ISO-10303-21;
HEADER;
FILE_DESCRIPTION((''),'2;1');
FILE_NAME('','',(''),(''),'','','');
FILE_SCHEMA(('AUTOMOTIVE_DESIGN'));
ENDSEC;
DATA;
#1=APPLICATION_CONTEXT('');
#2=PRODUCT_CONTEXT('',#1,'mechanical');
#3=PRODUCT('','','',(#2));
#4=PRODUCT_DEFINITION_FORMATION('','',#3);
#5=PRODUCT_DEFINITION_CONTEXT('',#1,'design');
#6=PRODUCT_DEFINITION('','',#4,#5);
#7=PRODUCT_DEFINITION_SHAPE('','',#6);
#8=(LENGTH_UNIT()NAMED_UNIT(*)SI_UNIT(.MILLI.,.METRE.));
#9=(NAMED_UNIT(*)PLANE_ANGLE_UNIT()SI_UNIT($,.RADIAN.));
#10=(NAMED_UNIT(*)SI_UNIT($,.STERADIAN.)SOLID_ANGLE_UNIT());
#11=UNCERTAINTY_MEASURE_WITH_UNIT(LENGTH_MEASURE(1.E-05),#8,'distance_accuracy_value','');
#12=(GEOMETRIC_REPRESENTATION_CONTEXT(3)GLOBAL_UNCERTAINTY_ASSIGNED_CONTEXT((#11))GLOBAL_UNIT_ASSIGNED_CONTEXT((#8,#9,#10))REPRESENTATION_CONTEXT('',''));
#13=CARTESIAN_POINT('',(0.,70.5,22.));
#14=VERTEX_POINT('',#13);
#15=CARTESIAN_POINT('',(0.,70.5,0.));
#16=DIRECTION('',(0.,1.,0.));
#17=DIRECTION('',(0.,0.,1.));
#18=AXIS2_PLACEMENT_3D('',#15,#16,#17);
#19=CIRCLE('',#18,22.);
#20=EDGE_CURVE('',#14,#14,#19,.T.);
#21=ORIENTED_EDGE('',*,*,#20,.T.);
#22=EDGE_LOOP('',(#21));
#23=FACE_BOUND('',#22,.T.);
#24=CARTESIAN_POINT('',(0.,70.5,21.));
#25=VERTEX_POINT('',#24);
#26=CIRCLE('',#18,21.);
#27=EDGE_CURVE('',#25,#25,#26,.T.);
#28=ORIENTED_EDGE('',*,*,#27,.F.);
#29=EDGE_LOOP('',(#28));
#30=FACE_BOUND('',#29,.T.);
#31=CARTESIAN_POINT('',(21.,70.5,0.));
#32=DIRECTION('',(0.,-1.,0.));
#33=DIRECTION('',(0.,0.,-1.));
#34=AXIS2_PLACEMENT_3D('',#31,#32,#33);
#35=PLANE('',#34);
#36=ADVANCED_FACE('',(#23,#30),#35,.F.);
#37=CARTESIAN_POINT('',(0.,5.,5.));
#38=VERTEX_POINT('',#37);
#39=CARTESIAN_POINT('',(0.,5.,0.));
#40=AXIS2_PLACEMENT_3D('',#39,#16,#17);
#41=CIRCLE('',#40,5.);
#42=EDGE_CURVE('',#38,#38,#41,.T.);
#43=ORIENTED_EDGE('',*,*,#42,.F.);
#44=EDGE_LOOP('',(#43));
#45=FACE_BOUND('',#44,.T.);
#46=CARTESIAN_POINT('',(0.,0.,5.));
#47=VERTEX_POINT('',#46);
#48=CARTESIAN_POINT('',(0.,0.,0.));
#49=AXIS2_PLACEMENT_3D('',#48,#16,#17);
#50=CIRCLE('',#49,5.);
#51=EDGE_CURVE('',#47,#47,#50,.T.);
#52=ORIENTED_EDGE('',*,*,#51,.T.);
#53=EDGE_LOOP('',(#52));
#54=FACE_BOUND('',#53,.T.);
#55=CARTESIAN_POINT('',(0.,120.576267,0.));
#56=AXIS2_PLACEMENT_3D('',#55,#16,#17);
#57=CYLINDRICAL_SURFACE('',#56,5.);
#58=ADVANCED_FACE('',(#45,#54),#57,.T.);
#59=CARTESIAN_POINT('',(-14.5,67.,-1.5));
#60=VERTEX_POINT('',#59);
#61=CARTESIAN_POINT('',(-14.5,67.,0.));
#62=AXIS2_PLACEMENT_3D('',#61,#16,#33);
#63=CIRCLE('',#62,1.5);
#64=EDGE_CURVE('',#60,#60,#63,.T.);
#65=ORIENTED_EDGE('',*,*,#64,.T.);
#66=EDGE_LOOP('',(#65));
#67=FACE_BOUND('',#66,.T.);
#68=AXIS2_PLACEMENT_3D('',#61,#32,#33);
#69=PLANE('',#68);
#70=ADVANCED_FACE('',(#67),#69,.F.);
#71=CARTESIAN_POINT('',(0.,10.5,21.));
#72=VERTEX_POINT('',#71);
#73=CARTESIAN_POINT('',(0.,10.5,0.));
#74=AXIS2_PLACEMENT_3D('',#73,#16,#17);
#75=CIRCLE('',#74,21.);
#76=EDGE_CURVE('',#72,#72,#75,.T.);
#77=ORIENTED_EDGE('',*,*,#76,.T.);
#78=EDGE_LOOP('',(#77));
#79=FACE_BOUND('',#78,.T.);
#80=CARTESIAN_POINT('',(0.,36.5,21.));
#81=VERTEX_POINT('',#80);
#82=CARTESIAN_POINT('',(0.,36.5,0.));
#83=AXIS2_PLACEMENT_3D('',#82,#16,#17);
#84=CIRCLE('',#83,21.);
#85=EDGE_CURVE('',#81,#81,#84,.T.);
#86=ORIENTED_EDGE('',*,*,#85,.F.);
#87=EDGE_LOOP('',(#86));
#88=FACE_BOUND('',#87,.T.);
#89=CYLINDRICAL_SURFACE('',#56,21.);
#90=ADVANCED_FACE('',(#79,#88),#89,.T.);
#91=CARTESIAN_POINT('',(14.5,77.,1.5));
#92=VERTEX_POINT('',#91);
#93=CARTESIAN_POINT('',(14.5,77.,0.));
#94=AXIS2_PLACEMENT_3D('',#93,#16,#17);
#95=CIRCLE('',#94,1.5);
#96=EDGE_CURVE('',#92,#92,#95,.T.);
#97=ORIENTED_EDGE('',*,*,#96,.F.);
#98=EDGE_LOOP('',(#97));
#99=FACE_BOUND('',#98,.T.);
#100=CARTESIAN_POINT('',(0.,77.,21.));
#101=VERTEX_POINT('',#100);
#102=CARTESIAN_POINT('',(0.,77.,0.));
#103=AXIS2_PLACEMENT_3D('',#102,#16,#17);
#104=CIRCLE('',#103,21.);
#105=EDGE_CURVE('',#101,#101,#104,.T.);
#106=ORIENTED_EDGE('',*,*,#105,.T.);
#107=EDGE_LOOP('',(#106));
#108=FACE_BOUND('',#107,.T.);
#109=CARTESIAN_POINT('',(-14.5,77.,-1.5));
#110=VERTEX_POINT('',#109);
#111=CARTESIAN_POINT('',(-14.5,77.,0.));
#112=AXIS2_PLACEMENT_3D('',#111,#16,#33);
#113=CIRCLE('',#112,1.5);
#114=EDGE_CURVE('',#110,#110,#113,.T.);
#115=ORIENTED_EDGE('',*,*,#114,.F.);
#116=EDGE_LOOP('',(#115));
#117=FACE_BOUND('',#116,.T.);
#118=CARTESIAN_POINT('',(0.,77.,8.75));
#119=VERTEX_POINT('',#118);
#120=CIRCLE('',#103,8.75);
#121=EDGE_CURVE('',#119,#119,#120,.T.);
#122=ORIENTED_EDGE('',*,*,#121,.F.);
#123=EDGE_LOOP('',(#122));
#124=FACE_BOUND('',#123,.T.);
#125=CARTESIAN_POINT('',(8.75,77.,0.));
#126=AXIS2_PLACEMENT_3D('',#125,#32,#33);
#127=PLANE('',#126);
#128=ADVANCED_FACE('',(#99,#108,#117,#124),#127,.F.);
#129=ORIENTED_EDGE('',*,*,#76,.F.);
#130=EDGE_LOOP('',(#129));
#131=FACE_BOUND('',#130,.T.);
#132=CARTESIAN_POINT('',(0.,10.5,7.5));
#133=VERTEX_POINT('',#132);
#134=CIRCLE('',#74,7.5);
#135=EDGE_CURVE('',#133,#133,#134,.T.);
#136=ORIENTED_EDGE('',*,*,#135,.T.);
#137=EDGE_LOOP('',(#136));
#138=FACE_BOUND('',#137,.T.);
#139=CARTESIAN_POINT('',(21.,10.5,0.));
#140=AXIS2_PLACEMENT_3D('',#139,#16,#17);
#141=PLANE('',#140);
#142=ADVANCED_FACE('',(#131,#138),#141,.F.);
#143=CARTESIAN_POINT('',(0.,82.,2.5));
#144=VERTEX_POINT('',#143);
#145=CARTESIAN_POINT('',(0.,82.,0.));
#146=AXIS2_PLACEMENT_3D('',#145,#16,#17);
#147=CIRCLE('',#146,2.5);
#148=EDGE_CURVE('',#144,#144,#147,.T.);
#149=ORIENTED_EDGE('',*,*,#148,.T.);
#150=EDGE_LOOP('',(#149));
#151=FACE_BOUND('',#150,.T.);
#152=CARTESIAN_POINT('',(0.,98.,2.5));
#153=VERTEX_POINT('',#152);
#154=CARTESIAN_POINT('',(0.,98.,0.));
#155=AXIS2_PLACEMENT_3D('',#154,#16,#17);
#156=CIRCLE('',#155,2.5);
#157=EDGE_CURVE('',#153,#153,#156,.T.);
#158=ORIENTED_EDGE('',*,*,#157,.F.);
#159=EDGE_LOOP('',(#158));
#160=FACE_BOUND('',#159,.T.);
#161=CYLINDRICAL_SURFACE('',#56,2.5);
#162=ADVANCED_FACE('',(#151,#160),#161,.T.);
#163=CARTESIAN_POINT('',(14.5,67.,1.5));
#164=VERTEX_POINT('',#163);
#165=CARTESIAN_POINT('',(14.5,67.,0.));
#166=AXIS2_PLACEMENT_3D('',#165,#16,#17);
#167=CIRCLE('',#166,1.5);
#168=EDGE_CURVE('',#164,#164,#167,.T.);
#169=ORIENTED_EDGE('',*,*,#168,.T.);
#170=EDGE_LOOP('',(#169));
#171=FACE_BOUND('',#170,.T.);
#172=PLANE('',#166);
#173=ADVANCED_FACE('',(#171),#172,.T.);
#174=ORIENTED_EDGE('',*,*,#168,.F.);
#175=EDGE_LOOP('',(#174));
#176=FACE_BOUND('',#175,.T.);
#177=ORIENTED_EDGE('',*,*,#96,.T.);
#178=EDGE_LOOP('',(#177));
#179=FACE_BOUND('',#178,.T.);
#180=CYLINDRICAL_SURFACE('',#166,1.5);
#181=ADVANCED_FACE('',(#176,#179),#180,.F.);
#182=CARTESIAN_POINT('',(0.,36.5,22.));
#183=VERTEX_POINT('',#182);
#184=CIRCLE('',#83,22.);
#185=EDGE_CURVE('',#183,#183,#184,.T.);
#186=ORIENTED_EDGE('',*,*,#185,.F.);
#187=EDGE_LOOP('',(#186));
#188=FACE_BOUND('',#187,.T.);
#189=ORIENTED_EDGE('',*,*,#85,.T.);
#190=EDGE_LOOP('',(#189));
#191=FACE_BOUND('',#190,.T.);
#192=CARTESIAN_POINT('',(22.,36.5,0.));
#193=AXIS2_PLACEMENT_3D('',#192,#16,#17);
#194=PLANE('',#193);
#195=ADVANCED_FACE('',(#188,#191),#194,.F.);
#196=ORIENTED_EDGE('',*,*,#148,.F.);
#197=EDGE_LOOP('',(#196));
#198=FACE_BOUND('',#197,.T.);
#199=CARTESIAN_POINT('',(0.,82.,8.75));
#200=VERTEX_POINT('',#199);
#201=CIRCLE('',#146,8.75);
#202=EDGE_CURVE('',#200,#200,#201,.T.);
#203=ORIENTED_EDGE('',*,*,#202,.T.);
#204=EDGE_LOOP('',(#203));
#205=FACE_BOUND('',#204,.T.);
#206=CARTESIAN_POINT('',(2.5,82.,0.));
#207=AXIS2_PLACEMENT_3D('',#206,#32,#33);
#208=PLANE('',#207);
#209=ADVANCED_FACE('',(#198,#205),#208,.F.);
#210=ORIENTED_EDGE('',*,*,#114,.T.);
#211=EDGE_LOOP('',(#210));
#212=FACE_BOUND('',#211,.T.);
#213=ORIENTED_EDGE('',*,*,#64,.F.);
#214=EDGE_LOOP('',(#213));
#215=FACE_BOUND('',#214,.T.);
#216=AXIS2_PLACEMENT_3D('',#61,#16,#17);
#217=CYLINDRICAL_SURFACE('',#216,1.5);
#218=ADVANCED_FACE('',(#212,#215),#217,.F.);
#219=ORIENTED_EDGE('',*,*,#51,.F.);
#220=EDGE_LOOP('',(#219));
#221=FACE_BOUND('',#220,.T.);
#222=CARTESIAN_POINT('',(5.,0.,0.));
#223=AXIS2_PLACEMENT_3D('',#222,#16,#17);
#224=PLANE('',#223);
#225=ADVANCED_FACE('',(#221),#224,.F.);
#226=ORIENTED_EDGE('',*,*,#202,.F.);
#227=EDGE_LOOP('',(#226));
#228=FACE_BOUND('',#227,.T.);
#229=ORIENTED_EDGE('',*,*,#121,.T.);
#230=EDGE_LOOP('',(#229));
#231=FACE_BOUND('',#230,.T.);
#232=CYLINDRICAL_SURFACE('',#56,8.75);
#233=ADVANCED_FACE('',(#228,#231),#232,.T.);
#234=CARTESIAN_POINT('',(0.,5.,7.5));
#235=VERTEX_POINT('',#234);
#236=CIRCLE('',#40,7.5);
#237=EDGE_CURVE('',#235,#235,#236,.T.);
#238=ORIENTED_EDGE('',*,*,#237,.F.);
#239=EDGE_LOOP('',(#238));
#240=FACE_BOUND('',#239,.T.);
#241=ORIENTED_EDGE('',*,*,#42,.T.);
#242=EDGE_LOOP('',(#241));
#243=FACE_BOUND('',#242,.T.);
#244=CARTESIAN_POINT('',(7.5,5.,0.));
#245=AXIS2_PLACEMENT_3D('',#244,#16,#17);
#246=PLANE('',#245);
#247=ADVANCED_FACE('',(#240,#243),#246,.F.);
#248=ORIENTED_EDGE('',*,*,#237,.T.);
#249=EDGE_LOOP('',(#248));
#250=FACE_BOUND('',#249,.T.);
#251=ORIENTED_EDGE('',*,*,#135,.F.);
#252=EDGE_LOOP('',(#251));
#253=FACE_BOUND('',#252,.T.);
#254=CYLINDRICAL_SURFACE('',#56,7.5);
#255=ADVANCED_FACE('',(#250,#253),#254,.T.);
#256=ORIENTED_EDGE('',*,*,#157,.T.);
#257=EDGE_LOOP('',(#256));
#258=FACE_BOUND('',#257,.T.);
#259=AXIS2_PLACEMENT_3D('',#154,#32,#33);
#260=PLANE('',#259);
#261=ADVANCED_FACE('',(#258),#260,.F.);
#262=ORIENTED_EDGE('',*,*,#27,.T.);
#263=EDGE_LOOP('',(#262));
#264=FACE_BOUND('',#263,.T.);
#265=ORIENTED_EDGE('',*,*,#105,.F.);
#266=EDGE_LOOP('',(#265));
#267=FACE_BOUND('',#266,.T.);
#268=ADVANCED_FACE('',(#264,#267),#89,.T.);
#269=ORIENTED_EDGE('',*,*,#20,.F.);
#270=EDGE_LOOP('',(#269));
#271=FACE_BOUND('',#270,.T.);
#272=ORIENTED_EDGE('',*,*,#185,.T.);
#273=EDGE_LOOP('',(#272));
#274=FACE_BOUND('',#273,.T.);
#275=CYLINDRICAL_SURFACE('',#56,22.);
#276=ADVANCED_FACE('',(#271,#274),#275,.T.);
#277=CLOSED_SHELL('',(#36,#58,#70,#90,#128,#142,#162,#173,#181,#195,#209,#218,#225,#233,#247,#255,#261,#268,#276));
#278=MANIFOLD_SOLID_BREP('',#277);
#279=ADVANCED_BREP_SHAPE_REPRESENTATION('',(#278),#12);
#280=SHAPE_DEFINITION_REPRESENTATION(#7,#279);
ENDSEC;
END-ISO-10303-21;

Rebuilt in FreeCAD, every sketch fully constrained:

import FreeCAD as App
import Part
import Sketcher

doc = App.newDocument("Part")
body = doc.addObject("PartDesign::Body", "Body")

# Sketch on XY plane
sketch1 = doc.addObject("Sketcher::SketchObject", "Sketch")
body.addObject(sketch1)
sketch1.AttachmentSupport = (doc.XY_Plane, [""])
sketch1.MapMode = "FlatFace"
sketch1.addGeometry([
    Part.LineSegment(App.Vector(2.5, 98, 0), App.Vector(0, 98, 0)),  # 0
    Part.LineSegment(App.Vector(0, 98, 0), App.Vector(0, 0, 0)),  # 1
    Part.LineSegment(App.Vector(0, 0, 0), App.Vector(5, 0, 0)),  # 2
    Part.LineSegment(App.Vector(5, 0, 0), App.Vector(5, 5, 0)),  # 3
    Part.LineSegment(App.Vector(5, 5, 0), App.Vector(7.5, 5, 0)),  # 4
    Part.LineSegment(App.Vector(7.5, 5, 0), App.Vector(7.5, 10.5, 0)),  # 5
    Part.LineSegment(App.Vector(7.5, 10.5, 0), App.Vector(21, 10.5, 0)),  # 6
    Part.LineSegment(App.Vector(21, 10.5, 0), App.Vector(21, 36.5, 0)),  # 7
    Part.LineSegment(App.Vector(21, 36.5, 0), App.Vector(22, 36.5, 0)),  # 8
    Part.LineSegment(App.Vector(22, 36.5, 0), App.Vector(22, 70.5, 0)),  # 9
    Part.LineSegment(App.Vector(22, 70.5, 0), App.Vector(21, 70.5, 0)),  # 10
    Part.LineSegment(App.Vector(21, 70.5, 0), App.Vector(21, 77, 0)),  # 11
    Part.LineSegment(App.Vector(21, 77, 0), App.Vector(8.8, 77, 0)),  # 12
    Part.LineSegment(App.Vector(8.8, 77, 0), App.Vector(8.8, 82, 0)),  # 13
    Part.LineSegment(App.Vector(8.8, 82, 0), App.Vector(2.5, 82, 0)),  # 14
    Part.LineSegment(App.Vector(2.5, 82, 0), App.Vector(2.5, 98, 0)),  # 15
], False)
sketch1.addConstraint([
    Sketcher.Constraint("Coincident", 0, 2, 1, 1),
    Sketcher.Constraint("Coincident", 1, 2, 2, 1),
    Sketcher.Constraint("Coincident", 2, 2, 3, 1),
    Sketcher.Constraint("Coincident", 3, 2, 4, 1),
    Sketcher.Constraint("Coincident", 4, 2, 5, 1),
    Sketcher.Constraint("Coincident", 5, 2, 6, 1),
    Sketcher.Constraint("Coincident", 6, 2, 7, 1),
    Sketcher.Constraint("Coincident", 7, 2, 8, 1),
    Sketcher.Constraint("Coincident", 8, 2, 9, 1),
    Sketcher.Constraint("Coincident", 9, 2, 10, 1),
    Sketcher.Constraint("Coincident", 10, 2, 11, 1),
    Sketcher.Constraint("Coincident", 11, 2, 12, 1),
    Sketcher.Constraint("Coincident", 12, 2, 13, 1),
    Sketcher.Constraint("Coincident", 13, 2, 14, 1),
    Sketcher.Constraint("Coincident", 14, 2, 15, 1),
    Sketcher.Constraint("Coincident", 15, 2, 0, 1),
    Sketcher.Constraint("Horizontal", 0),
    Sketcher.Constraint("Vertical", 1),
    Sketcher.Constraint("Horizontal", 2),
    Sketcher.Constraint("Vertical", 3),
    Sketcher.Constraint("Horizontal", 4),
    Sketcher.Constraint("Vertical", 5),
    Sketcher.Constraint("Horizontal", 6),
    Sketcher.Constraint("Vertical", 7),
    Sketcher.Constraint("Horizontal", 8),
    Sketcher.Constraint("Vertical", 9),
    Sketcher.Constraint("Horizontal", 10),
    Sketcher.Constraint("Vertical", 11),
    Sketcher.Constraint("Horizontal", 12),
    Sketcher.Constraint("Vertical", 13),
    Sketcher.Constraint("Horizontal", 14),
    Sketcher.Constraint("Vertical", 15),
    Sketcher.Constraint("Coincident", 1, 2, -1, 1),
    Sketcher.Constraint("Vertical", 7, 2, 10, 2),
    Sketcher.Constraint("Equal", 0, 4),
    Sketcher.Constraint("Equal", 2, 3),
    Sketcher.Constraint("Equal", 3, 13),
    Sketcher.Constraint("DistanceX", 2, 1, 2, 2, 5.0),
    Sketcher.Constraint("DistanceX", 8, 1, 8, 2, 1.0),
    Sketcher.Constraint("DistanceY", 1, 2, 1, 1, 98.0),
    Sketcher.Constraint("DistanceY", 7, 1, 7, 2, 26.0),
    Sketcher.Constraint("DistanceY", 9, 1, 9, 2, 34.0),
    Sketcher.Constraint("DistanceY", 15, 1, 15, 2, 16.0),
    Sketcher.Constraint("DistanceX", 0, 2, 0, 1, 2.5),
    Sketcher.Constraint("DistanceX", 6, 1, 6, 2, 13.5),
    Sketcher.Constraint("DistanceY", 5, 1, 5, 2, 5.5),
    Sketcher.Constraint("DistanceX", 12, 2, 12, 1, 12.25),
])
revolution = doc.addObject("PartDesign::Revolution", "Revolution")
body.addObject(revolution)
revolution.Profile = sketch1
revolution.ReferenceAxis = (sketch1, ["V_Axis"])
revolution.Angle = 360

# Sketch on XZ plane
sketch2 = doc.addObject("Sketcher::SketchObject", "Sketch001")
body.addObject(sketch2)
sketch2.AttachmentSupport = (doc.XZ_Plane, [""])
sketch2.MapMode = "FlatFace"
sketch2.AttachmentOffset = App.Placement(App.Vector(0, 0, -77), App.Rotation())
sketch2.addGeometry([
    Part.Circle(App.Vector(14.5, 0, 0), App.Vector(0, 0, 1), 1.5),
    Part.Circle(App.Vector(-14.5, 0, 0), App.Vector(0, 0, 1), 1.5),
], False)
sketch2.addConstraint([
    Sketcher.Constraint("Equal", 0, 1),
    Sketcher.Constraint("Symmetric", 0, 3, 1, 3, -1, 1),
    Sketcher.Constraint("PointOnObject", 0, 3, -1),
    Sketcher.Constraint("Diameter", 0, 3.0),
    Sketcher.Constraint("DistanceX", 1, 3, 0, 3, 29.0),
])
pocket1 = doc.addObject("PartDesign::Pocket", "Pocket")
body.addObject(pocket1)
pocket1.Profile = sketch2
pocket1.Length = 10
pocket1.Reversed = True

doc.recompute()
